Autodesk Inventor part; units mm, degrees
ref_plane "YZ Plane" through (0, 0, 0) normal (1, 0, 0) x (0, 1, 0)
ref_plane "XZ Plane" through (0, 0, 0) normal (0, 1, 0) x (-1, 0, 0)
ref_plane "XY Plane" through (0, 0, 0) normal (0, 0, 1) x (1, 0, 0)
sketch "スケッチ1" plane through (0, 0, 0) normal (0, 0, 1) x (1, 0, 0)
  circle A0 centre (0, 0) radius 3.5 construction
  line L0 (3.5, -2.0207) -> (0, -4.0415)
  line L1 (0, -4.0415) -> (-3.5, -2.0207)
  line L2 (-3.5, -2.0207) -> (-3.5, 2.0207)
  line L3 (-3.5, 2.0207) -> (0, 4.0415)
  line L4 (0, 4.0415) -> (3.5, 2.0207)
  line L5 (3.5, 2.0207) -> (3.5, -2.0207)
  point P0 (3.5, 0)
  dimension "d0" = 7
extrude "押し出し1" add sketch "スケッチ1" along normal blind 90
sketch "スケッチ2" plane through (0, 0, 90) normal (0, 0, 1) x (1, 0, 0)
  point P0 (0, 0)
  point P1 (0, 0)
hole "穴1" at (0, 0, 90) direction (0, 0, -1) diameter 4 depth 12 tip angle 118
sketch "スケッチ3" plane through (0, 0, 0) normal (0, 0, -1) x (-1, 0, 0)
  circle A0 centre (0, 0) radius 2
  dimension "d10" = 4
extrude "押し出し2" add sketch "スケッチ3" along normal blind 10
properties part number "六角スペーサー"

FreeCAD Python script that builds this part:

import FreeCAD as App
import Part
import Sketcher

V = App.Vector
Q = App.Units.Quantity


def add_polygon(sketch, points):
    """Adds a closed chain of lines whose ends are joined by coincident constraints."""
    first, n = sketch.GeometryCount, len(points)
    for a, b in zip(points, points[1:] + points[:1]):
        sketch.addGeometry(Part.LineSegment(App.Vector(*a, 0), App.Vector(*b, 0)), False)
    for i in range(n):
        sketch.addConstraint(Sketcher.Constraint("Coincident", first + i, 2, first + (i + 1) % n, 1))

doc = App.newDocument("Part")
body = doc.addObject("PartDesign::Body", "Body")

sketch1 = doc.addObject("Sketcher::SketchObject", "Sketch")
body.addObject(sketch1)
sketch1.AttachmentSupport = (doc.XY_Plane, [""])
sketch1.MapMode = "FlatFace"
add_polygon(sketch1, [(0, -4.0415), (3.5, -2.0207), (3.5, 2.0207), (0, 4.0415), (-3.5, 2.0207), (-3.5, -2.0207)])
sketch1.addConstraint([
    Sketcher.Constraint("Vertical", 1),
    Sketcher.Constraint("Vertical", 4),
    Sketcher.Constraint("Symmetric", 0, 2, 3, 2, -1, 1),
    Sketcher.Constraint("Symmetric", 2, 2, 5, 2, -1, 1),
    Sketcher.Constraint("PointOnObject", 2, 2, -2),
    Sketcher.Constraint("Parallel", 2, 5),
    Sketcher.Constraint("Horizontal", 1, 2, 3, 2),
    Sketcher.Constraint("DistanceX", 3, 2, 1, 2, Q("7 mm")),
    Sketcher.Constraint("Angle", 0, Q("30.001 deg")),
    Sketcher.Constraint("DistanceY", 1, 1, 1, 2, Q("4.0414 mm")),
])
pad1 = doc.addObject("PartDesign::Pad", "Pad")
body.addObject(pad1)
pad1.Profile = sketch1
pad1.Length = 90

sketch2 = doc.addObject("Sketcher::SketchObject", "Sketch001")
body.addObject(sketch2)
sketch2.AttachmentSupport = (doc.XY_Plane, [""])
sketch2.MapMode = "FlatFace"
sketch2.AttachmentOffset = App.Placement(V(0, 0, 90), App.Rotation())
sketch2.addGeometry(Part.Circle(V(0, 0, 0), V(0, 0, 1), 2), False)
sketch2.addConstraint([
    Sketcher.Constraint("Coincident", 0, 3, -1, 1),
    Sketcher.Constraint("Diameter", 0, Q("4 mm")),
])
doc.recompute()
hole = doc.addObject("PartDesign::Hole", "Hole")
body.addObject(hole)
hole.Profile = sketch2
hole.ThreadType = "None"
hole.Diameter = 4
hole.DepthType = "Dimension"
hole.Depth = 12
hole.DrillPoint = "Angled"
hole.DrillPointAngle = 118

sketch3 = doc.addObject("Sketcher::SketchObject", "Sketch002")
body.addObject(sketch3)
sketch3.AttachmentSupport = (doc.XY_Plane, [""])
sketch3.MapMode = "FlatFace"
sketch3.addGeometry(Part.Circle(V(0, 0, 0), V(0, 0, 1), 2), False)
sketch3.addConstraint([
    Sketcher.Constraint("Coincident", 0, 3, -1, 1),
    Sketcher.Constraint("Diameter", 0, Q("4 mm")),
])
pad2 = doc.addObject("PartDesign::Pad", "Pad001")
body.addObject(pad2)
pad2.Profile = sketch3
pad2.Length = 10
pad2.Reversed = True

doc.recompute()
